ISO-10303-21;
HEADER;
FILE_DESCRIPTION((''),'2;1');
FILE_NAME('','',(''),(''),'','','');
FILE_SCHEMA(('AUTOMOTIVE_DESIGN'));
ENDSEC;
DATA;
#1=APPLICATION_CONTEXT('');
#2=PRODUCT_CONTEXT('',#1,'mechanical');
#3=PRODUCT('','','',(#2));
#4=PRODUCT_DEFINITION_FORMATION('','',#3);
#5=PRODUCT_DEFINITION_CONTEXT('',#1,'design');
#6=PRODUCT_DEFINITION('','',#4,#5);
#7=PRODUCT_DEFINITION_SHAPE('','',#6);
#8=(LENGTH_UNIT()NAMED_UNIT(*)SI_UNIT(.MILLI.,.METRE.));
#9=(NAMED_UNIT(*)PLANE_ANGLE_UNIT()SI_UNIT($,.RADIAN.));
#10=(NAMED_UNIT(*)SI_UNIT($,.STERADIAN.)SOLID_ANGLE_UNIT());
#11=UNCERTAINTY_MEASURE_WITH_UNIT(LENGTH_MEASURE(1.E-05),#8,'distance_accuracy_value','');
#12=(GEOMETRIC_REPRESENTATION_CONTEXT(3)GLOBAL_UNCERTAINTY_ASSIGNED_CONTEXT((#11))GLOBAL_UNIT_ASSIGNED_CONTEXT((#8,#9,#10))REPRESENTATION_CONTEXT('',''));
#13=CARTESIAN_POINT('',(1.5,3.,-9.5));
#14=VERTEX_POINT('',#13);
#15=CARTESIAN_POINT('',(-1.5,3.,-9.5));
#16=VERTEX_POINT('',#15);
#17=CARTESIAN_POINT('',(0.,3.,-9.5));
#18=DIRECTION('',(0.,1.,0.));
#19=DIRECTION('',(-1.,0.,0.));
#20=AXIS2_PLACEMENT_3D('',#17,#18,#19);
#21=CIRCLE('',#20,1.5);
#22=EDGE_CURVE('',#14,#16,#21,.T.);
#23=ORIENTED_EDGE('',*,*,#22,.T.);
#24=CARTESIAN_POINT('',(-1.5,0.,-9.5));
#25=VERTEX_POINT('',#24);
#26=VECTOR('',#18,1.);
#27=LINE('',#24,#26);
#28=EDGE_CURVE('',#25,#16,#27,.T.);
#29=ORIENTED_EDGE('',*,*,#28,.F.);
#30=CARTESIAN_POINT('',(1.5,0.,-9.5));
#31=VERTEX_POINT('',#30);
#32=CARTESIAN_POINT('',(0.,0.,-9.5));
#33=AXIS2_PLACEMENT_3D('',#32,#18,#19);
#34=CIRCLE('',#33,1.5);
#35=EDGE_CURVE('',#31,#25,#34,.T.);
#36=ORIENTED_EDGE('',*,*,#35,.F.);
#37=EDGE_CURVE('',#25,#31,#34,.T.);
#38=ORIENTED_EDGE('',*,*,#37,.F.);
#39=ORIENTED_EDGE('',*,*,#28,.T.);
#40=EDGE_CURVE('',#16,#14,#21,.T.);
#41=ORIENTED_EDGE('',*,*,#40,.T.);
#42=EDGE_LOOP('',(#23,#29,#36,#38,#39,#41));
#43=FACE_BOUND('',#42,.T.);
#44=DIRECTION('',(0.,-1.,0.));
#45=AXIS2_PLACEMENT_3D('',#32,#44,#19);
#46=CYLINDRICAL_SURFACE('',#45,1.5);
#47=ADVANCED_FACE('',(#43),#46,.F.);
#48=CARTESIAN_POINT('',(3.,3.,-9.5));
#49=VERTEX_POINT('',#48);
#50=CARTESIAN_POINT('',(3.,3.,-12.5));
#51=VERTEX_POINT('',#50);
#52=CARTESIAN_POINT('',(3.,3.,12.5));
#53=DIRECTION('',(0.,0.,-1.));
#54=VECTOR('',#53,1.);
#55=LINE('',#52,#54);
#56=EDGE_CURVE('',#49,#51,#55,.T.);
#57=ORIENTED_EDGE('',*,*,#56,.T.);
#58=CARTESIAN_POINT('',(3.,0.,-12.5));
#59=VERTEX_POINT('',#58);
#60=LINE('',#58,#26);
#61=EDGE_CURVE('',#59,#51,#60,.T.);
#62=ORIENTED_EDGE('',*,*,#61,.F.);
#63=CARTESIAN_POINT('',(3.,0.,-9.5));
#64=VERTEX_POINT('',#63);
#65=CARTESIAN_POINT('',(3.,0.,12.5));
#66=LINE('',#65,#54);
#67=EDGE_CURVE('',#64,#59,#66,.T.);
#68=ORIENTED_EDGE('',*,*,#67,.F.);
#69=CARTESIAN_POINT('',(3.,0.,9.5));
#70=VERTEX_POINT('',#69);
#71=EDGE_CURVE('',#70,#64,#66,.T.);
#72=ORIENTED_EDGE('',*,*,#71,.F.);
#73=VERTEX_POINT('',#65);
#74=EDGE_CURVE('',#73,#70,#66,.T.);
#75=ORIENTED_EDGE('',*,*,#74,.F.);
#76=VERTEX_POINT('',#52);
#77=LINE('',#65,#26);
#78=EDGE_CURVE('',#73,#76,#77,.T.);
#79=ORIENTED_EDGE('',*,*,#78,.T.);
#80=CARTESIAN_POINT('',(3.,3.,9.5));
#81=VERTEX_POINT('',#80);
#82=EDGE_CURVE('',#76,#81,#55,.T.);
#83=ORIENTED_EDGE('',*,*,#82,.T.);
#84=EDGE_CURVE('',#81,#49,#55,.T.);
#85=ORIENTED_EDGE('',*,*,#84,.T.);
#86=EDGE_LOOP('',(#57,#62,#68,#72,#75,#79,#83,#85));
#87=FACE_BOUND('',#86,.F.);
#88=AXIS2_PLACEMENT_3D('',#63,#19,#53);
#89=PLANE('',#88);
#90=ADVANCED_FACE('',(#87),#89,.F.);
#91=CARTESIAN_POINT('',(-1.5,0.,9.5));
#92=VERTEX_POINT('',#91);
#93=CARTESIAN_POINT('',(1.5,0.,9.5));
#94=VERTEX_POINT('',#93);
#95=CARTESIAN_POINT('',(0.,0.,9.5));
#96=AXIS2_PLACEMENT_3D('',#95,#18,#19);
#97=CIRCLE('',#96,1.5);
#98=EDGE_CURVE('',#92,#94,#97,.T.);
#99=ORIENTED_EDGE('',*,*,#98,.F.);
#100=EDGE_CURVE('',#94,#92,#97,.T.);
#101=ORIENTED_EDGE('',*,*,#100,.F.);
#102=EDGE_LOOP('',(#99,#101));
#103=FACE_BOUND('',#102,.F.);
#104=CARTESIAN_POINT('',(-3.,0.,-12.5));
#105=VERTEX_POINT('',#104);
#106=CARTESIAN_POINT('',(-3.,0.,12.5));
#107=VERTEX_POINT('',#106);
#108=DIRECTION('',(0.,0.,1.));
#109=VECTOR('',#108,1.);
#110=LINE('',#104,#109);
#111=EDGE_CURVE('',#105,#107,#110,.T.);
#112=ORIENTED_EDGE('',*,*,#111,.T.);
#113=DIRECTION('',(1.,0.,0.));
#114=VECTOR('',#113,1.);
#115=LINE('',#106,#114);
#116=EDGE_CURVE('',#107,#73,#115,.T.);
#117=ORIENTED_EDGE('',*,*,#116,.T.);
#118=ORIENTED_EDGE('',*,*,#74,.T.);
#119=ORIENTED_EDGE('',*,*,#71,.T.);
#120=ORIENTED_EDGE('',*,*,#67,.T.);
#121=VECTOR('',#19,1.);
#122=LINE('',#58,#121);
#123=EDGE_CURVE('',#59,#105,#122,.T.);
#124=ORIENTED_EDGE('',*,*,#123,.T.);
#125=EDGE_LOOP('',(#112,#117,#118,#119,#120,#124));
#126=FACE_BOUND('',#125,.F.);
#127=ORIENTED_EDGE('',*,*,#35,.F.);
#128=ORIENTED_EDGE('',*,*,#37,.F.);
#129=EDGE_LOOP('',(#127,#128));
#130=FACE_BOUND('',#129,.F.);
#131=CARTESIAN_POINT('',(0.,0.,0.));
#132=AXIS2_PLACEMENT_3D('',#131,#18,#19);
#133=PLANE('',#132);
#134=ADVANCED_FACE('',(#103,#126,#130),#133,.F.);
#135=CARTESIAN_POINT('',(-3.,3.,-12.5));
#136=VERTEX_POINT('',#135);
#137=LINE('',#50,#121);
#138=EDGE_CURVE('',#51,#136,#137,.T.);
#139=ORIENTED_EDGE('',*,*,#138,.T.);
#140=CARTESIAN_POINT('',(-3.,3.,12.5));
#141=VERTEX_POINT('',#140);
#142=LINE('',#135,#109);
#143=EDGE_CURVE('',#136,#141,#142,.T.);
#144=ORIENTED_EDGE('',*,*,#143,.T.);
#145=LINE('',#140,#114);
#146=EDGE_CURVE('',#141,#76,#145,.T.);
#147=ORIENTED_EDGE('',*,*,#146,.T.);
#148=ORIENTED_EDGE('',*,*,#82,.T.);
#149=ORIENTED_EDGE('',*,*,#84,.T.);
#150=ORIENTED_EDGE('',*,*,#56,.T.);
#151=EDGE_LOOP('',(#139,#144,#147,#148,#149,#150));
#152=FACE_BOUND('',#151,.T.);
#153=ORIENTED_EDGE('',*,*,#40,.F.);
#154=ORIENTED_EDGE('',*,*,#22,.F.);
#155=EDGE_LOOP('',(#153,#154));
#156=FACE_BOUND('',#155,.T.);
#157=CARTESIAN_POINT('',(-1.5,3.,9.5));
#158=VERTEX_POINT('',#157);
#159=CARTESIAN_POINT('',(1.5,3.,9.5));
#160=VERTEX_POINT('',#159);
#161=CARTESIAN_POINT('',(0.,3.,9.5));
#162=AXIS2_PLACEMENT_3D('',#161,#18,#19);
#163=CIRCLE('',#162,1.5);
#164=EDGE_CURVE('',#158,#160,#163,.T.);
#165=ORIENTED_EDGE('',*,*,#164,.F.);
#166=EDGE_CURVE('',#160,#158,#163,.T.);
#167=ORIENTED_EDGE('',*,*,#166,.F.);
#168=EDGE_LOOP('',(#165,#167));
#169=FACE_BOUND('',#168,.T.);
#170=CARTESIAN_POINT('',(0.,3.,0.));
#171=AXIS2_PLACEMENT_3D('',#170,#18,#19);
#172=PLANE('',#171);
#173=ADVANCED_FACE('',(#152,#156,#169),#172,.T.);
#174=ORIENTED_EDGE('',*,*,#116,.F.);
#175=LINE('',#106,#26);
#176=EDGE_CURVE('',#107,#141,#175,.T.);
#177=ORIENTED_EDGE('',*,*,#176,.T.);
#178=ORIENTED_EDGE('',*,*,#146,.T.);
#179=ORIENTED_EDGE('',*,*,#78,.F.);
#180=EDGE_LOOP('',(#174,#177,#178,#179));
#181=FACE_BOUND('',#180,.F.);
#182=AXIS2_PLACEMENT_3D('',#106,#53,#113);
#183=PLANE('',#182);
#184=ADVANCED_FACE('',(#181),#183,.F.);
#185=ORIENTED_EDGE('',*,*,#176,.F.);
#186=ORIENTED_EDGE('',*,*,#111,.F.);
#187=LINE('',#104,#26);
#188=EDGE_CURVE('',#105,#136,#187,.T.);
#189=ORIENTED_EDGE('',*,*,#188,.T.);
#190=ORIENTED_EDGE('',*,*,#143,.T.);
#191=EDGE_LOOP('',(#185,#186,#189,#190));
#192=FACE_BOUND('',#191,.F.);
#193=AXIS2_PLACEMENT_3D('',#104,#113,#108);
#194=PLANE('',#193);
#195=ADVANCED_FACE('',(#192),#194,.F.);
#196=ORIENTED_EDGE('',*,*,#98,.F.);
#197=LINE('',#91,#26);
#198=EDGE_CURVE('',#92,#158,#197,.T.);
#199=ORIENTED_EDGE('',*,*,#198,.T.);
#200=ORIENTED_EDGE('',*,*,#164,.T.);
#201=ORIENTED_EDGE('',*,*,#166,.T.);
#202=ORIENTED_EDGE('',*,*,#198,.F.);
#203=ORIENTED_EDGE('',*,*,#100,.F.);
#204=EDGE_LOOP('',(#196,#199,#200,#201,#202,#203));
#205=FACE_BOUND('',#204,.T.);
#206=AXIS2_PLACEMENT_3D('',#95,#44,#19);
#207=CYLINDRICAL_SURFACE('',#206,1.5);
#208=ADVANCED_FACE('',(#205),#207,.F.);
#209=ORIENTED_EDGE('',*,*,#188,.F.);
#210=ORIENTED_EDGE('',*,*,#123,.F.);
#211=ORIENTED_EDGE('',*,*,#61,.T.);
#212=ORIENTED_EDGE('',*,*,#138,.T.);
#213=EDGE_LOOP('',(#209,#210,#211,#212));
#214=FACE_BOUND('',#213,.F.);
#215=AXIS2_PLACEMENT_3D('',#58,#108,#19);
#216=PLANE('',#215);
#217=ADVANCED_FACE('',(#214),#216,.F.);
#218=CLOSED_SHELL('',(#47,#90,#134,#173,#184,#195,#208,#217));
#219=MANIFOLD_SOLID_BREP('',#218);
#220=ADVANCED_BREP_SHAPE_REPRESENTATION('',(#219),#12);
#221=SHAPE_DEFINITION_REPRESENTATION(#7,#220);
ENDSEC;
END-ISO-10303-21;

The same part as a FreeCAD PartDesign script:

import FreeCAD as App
import Part
import Sketcher
from FreeCAD import Vector

doc = App.newDocument("Part")
body = doc.addObject("PartDesign::Body", "Body")

# Sketch on XZ plane
sketch1 = body.newObject("Sketcher::SketchObject", "Sketch")
sketch1.AttachmentSupport = (doc.getObject("XZ_Plane"), [""])
sketch1.MapMode = "FlatFace"
sketch1.addGeometry([
    Part.LineSegment(Vector(-3, -12.5, 0), Vector(-3, 12.5, 0)),  # 0
    Part.LineSegment(Vector(-3, 12.5, 0), Vector(3, 12.5, 0)),  # 1
    Part.LineSegment(Vector(3, 12.5, 0), Vector(3, 9.5, 0)),  # 2
    Part.LineSegment(Vector(3, 9.5, 0), Vector(3, -9.5, 0)),  # 3
    Part.LineSegment(Vector(3, -9.5, 0), Vector(3, -12.5, 0)),  # 4
    Part.LineSegment(Vector(3, -12.5, 0), Vector(-3, -12.5, 0)),  # 5
], False)
sketch1.addConstraint([
    Sketcher.Constraint("Coincident", 0, 2, 1, 1),
    Sketcher.Constraint("Coincident", 1, 2, 2, 1),
    Sketcher.Constraint("Coincident", 2, 2, 3, 1),
    Sketcher.Constraint("Coincident", 3, 2, 4, 1),
    Sketcher.Constraint("Coincident", 4, 2, 5, 1),
    Sketcher.Constraint("Coincident", 5, 2, 0, 1),
    Sketcher.Constraint("Vertical", 0),
    Sketcher.Constraint("Horizontal", 1),
    Sketcher.Constraint("Vertical", 2),
    Sketcher.Constraint("Vertical", 3),
    Sketcher.Constraint("Vertical", 4),
    Sketcher.Constraint("Horizontal", 5),
    Sketcher.Constraint("Symmetric", 0, 2, 4, 2, -1, 1),
    Sketcher.Constraint("Equal", 2, 4),
    Sketcher.Constraint("DistanceX", 1, 1, 1, 2, 6.0),
    Sketcher.Constraint("DistanceY", 0, 1, 0, 2, 25.0),
    Sketcher.Constraint("DistanceY", 2, 2, 2, 1, 3.0),
])
pad1 = body.newObject("PartDesign::Pad", "Pad")
pad1.Profile = sketch1
pad1.Length = 3
pad1.Reversed = True

# Sketch on XZ plane
sketch2 = body.newObject("Sketcher::SketchObject", "Sketch001")
sketch2.AttachmentSupport = (doc.getObject("XZ_Plane"), [""])
sketch2.MapMode = "FlatFace"
sketch2.addGeometry(Part.Circle(Vector(0, -9.5, 0), Vector(0, 0, 1), 1.5), False)
sketch2.addConstraint([
    Sketcher.Constraint("PointOnObject", 0, 3, -2),
    Sketcher.Constraint("Diameter", 0, 3.0),
    Sketcher.Constraint("DistanceY", 0, 3, -1, 1, 9.5),
])
pocket1 = body.newObject("PartDesign::Pocket", "Pocket")
pocket1.Profile = sketch2
pocket1.Length = 3

# Sketch on XZ plane
sketch3 = body.newObject("Sketcher::SketchObject", "Sketch002")
sketch3.AttachmentSupport = (doc.getObject("XZ_Plane"), [""])
sketch3.MapMode = "FlatFace"
sketch3.addGeometry(Part.Circle(Vector(0, 9.5, 0), Vector(0, 0, 1), 1.5), False)
sketch3.addConstraint([
    Sketcher.Constraint("PointOnObject", 0, 3, -2),
    Sketcher.Constraint("Diameter", 0, 3.0),
    Sketcher.Constraint("DistanceY", -1, 1, 0, 3, 9.5),
])
pocket2 = body.newObject("PartDesign::Pocket", "Pocket001")
pocket2.Profile = sketch3
pocket2.Length = 3

doc.recompute()
